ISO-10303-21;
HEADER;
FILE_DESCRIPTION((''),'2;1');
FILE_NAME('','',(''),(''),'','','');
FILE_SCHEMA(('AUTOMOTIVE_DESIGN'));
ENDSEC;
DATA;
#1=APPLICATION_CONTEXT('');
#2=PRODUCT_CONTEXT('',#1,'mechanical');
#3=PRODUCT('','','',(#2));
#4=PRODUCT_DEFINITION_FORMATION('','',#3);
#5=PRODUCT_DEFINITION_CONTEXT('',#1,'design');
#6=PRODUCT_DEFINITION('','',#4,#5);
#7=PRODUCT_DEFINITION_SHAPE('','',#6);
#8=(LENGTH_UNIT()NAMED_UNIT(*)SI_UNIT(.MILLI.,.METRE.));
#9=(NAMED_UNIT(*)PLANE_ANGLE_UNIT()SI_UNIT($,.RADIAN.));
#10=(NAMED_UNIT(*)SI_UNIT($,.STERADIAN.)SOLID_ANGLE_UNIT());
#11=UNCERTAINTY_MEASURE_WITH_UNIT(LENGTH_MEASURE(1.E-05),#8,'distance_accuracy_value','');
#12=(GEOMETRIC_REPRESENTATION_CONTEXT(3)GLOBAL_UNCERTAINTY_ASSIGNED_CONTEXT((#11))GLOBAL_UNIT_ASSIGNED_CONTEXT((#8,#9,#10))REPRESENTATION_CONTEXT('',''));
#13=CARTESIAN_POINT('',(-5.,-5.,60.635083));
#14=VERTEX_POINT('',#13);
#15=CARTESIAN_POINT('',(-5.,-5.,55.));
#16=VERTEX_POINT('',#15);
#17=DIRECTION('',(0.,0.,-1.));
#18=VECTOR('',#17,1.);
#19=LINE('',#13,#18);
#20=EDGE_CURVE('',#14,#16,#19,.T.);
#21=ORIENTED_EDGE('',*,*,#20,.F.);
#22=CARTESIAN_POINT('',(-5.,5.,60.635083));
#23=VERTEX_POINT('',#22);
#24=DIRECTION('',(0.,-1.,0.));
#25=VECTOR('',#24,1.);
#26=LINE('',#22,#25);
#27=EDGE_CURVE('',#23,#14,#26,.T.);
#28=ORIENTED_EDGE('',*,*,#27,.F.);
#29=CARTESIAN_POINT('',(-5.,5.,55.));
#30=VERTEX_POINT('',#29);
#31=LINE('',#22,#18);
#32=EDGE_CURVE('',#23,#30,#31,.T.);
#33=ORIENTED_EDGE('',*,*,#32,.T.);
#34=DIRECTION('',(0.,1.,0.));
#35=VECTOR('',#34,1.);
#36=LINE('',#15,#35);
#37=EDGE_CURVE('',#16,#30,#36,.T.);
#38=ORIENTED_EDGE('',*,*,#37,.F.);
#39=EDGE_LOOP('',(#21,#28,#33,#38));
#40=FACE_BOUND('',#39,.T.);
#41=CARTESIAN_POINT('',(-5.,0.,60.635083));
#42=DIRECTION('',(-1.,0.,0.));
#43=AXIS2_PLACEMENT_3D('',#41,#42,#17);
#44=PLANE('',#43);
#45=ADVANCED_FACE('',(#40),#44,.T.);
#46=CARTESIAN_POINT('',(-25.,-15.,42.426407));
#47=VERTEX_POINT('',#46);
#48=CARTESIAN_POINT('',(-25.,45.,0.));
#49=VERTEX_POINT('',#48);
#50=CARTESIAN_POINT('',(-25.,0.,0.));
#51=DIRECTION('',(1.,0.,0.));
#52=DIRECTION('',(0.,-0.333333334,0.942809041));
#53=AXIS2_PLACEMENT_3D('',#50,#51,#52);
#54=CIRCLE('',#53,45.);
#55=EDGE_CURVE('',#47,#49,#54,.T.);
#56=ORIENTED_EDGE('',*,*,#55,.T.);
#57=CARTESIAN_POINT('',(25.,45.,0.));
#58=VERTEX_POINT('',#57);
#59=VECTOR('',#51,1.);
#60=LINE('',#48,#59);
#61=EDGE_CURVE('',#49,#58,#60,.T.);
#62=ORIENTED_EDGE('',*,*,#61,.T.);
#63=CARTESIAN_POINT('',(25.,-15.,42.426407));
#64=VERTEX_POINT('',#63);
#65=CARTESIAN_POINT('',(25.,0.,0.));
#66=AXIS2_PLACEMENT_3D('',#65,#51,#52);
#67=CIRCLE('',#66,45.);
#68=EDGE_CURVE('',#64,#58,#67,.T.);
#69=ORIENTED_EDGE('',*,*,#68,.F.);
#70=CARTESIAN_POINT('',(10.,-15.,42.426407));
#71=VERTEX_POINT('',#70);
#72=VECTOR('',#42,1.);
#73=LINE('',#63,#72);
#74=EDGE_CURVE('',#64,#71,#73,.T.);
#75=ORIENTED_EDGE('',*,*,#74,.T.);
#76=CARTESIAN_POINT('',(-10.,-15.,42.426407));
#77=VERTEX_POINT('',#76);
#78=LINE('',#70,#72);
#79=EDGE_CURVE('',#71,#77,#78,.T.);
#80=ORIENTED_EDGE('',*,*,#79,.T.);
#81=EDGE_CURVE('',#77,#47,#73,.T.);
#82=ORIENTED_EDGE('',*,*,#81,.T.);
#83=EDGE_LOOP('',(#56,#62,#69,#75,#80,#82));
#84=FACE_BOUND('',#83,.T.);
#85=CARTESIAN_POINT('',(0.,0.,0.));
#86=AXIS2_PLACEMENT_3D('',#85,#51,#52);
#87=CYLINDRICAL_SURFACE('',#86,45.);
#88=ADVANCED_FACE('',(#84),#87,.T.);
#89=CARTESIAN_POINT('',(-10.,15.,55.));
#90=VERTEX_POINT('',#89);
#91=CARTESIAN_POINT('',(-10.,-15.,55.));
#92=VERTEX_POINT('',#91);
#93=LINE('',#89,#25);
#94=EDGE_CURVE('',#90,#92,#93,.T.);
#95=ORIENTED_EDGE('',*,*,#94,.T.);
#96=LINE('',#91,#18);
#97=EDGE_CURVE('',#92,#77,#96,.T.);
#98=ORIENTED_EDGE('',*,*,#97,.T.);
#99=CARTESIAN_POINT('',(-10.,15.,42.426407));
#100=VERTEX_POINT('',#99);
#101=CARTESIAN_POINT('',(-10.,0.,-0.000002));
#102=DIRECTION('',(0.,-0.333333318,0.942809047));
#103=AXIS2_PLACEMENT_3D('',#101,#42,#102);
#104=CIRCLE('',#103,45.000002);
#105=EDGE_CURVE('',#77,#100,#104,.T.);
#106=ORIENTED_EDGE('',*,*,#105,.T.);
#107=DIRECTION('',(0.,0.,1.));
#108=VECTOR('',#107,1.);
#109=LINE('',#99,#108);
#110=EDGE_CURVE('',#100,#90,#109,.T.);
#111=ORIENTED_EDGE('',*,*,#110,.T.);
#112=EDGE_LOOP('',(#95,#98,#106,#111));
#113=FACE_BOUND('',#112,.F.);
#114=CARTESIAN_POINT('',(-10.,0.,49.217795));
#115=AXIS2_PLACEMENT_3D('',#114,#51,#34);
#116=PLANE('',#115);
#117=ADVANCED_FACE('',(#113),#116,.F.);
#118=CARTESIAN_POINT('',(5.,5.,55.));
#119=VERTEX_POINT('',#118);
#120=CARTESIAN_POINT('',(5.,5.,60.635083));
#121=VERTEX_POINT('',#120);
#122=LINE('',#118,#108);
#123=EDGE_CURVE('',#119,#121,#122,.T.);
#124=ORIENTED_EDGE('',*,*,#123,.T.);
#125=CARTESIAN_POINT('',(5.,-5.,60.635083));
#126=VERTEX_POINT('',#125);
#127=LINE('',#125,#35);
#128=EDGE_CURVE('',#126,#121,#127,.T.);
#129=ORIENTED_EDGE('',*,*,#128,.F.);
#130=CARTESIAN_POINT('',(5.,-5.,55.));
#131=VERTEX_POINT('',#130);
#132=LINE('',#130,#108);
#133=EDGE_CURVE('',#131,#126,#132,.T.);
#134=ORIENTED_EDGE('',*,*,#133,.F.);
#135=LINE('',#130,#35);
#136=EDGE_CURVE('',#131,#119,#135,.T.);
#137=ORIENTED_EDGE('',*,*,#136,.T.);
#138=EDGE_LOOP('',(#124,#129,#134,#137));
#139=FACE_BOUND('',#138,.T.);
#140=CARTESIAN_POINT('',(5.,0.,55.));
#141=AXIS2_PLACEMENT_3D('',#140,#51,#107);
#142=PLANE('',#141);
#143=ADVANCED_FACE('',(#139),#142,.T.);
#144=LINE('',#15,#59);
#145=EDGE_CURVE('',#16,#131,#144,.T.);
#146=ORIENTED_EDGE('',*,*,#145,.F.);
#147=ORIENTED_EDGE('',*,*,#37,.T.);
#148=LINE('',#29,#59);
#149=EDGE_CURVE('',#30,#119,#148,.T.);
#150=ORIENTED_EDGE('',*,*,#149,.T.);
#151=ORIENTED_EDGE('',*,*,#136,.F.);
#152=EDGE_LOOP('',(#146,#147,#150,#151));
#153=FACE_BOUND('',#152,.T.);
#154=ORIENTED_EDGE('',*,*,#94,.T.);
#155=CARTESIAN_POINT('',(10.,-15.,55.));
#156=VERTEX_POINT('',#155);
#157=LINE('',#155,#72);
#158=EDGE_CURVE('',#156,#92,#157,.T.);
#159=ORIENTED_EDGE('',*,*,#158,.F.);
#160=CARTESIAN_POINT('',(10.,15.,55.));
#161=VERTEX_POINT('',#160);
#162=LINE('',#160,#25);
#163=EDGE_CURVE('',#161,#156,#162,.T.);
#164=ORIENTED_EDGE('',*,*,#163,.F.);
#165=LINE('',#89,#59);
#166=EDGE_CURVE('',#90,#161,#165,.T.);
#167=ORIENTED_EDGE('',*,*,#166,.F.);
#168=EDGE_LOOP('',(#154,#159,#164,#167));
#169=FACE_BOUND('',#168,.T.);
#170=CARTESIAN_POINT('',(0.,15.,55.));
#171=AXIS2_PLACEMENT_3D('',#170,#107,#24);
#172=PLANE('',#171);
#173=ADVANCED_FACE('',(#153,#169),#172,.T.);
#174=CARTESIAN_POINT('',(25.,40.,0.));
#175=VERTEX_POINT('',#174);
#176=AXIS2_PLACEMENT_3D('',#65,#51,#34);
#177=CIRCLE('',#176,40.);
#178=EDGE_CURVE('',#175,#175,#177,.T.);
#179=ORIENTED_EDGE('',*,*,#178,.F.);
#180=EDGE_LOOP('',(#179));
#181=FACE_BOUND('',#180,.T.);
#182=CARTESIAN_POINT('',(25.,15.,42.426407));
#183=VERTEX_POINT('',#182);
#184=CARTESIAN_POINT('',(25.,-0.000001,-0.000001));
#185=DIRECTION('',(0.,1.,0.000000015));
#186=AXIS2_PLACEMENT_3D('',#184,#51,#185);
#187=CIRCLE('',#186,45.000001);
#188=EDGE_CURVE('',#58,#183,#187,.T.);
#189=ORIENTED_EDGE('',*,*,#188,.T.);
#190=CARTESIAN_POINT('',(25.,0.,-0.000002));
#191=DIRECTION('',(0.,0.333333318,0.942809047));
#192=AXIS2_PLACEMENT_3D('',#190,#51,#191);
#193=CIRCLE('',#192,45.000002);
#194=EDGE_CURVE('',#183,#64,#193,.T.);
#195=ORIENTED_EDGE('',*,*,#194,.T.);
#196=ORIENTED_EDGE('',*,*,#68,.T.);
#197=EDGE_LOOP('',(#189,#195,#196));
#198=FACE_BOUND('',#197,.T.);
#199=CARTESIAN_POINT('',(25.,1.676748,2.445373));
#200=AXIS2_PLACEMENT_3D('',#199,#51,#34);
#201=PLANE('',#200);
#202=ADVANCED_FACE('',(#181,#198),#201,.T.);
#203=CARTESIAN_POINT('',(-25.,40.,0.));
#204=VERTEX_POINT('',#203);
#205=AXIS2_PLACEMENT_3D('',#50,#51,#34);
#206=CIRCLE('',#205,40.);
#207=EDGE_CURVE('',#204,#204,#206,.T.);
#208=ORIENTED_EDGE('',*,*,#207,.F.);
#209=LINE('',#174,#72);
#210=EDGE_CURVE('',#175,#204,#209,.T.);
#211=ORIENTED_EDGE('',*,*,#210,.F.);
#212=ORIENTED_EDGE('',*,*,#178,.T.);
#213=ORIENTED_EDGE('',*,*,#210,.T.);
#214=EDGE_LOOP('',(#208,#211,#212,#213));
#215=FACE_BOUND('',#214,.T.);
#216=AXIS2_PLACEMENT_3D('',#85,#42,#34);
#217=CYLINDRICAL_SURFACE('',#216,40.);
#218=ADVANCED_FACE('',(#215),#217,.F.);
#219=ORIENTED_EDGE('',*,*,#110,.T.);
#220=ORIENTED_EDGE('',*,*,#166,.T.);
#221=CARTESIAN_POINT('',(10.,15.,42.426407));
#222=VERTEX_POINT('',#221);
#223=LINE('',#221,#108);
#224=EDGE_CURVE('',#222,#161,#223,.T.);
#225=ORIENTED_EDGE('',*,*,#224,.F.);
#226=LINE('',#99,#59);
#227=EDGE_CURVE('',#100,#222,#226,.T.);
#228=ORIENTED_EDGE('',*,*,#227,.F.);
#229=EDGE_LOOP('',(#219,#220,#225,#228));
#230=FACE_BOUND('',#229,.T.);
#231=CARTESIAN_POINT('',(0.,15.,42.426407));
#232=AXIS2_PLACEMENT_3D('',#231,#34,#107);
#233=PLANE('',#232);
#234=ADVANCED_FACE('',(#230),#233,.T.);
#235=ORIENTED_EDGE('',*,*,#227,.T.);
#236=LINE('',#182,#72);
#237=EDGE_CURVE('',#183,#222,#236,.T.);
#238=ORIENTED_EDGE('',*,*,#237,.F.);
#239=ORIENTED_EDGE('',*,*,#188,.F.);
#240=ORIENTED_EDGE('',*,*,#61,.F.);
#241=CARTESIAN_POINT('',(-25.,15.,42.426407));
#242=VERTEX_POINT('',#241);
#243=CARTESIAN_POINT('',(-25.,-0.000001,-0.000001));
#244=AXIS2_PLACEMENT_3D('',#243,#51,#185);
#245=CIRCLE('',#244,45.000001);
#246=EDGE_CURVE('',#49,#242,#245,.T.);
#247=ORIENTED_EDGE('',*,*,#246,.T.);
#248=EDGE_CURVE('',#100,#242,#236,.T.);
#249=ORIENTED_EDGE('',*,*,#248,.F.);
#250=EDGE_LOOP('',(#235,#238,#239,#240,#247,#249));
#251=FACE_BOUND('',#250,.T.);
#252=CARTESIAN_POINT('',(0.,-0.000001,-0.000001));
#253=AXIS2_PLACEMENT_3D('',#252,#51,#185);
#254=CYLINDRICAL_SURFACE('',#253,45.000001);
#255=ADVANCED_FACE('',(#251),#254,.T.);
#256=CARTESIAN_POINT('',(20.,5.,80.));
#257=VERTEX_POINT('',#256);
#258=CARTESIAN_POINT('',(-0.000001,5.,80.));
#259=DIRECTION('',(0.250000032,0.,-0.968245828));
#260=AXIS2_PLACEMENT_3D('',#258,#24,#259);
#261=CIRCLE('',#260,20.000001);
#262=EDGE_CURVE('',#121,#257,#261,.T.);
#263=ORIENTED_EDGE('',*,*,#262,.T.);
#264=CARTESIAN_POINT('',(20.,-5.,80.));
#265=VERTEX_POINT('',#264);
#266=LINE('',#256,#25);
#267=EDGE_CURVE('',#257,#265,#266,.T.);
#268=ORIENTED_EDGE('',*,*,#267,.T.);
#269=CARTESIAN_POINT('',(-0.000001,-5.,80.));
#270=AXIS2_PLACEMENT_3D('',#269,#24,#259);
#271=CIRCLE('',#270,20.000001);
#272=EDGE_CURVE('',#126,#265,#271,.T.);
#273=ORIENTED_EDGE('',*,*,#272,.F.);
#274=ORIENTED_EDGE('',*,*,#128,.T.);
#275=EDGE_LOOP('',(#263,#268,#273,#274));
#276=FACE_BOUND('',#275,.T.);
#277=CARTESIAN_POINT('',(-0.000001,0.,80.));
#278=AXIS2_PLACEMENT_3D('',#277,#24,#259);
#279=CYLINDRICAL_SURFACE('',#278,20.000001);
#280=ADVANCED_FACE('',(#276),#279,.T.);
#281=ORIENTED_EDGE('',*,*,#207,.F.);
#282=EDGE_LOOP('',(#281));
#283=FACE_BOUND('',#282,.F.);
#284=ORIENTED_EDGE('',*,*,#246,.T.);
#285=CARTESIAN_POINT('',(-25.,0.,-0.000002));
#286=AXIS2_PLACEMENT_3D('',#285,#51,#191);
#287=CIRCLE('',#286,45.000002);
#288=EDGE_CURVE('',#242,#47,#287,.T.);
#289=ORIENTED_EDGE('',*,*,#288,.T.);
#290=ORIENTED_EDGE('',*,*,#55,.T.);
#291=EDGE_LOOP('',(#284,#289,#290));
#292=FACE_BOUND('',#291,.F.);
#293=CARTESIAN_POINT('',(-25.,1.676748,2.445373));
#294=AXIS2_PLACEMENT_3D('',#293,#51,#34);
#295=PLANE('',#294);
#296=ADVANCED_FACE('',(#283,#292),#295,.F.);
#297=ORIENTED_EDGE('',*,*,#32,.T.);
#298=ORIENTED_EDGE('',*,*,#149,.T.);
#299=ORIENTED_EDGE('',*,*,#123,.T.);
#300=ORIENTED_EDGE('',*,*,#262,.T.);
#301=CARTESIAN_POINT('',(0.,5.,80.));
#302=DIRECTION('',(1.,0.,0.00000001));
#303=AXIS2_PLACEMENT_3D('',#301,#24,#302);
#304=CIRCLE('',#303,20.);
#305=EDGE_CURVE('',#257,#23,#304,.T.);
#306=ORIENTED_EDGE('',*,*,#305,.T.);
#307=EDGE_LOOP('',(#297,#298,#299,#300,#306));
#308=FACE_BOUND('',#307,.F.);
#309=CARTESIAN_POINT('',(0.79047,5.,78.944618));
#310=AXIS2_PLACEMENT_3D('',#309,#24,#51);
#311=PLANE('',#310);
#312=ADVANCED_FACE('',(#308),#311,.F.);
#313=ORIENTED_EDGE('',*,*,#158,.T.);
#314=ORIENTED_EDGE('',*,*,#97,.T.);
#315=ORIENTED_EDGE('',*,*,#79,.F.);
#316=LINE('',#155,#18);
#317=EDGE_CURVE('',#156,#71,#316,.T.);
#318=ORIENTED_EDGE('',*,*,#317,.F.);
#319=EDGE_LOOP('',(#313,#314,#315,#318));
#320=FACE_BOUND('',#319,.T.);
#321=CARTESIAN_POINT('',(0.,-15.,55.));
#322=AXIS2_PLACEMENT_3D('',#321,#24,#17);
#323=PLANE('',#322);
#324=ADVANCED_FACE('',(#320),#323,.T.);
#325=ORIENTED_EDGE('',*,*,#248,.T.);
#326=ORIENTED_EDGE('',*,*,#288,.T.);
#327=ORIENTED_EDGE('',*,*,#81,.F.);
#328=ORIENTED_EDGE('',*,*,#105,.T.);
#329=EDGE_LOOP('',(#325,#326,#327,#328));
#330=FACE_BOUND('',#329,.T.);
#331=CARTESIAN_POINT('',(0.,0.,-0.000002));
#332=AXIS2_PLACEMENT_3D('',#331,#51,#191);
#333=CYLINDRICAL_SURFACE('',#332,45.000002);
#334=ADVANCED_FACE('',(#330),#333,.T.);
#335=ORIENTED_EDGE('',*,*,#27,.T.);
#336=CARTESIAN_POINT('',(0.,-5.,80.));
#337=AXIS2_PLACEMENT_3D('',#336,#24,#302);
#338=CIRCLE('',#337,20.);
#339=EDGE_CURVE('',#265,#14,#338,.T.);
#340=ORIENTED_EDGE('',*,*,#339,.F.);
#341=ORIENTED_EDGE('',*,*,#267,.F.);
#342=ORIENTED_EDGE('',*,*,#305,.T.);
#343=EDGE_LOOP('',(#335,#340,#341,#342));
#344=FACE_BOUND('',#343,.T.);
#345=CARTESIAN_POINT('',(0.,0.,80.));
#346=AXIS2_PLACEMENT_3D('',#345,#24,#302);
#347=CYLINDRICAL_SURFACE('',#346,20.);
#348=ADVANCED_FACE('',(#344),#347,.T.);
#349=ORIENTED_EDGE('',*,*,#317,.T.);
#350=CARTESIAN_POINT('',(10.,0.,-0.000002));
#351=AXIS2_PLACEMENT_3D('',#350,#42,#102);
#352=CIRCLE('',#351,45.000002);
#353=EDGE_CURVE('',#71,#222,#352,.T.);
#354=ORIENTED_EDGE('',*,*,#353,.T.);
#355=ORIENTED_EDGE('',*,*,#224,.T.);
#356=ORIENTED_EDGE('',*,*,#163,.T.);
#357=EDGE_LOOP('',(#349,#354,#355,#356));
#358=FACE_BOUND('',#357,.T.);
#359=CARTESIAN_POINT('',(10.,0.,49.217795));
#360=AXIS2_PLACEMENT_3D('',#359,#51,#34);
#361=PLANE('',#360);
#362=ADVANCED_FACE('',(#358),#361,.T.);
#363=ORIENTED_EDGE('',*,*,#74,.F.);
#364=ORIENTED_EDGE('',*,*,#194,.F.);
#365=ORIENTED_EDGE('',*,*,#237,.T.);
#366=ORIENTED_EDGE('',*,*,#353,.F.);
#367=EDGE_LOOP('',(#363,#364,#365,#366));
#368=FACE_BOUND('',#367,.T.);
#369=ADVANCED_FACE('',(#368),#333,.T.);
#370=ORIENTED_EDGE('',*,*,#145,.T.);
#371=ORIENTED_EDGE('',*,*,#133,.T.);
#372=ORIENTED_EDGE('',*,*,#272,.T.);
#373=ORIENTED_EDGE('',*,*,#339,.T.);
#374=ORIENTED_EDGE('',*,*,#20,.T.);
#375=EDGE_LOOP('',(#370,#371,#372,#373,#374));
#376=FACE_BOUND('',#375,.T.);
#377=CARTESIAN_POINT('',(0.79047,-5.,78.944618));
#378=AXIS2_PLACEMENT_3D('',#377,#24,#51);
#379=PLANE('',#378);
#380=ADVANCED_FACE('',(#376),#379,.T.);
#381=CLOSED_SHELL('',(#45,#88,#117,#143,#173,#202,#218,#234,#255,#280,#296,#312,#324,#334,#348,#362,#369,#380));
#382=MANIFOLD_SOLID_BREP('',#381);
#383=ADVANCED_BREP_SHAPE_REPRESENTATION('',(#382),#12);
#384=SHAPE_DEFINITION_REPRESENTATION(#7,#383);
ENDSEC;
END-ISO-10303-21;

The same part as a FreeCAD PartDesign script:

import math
import FreeCAD as App
import Part
import Sketcher
from FreeCAD import Vector

doc = App.newDocument("Part")
body = doc.addObject("PartDesign::Body", "Body")

# Sketch on YZ plane
sketch1 = body.newObject("Sketcher::SketchObject", "Sketch")
sketch1.AttachmentSupport = (doc.getObject("YZ_Plane"), [""])
sketch1.MapMode = "FlatFace"
sketch1.addGeometry([
    Part.ArcOfCircle(Part.Circle(Vector(0, 0, 0), Vector(0, 0, 1), 45), math.radians(109.471221), math.radians(360)),
    Part.ArcOfCircle(Part.Circle(Vector(-0.000001, -0.000001, 0), Vector(0, 0, 1), 45.000001), math.radians(0.000001), math.radians(70.528778)),
    Part.ArcOfCircle(Part.Circle(Vector(0, -0.000002, 0), Vector(0, 0, 1), 45.000002), math.radians(70.52878), math.radians(109.47122)),
    Part.Circle(Vector(0, 0, 0), Vector(0, 0, 1), 40),
], False)
sketch1.addConstraint([
    Sketcher.Constraint("Tangent", 0, 2, 1, 1),
    Sketcher.Constraint("Tangent", 1, 2, 2, 1),
    Sketcher.Constraint("Tangent", 2, 2, 0, 1),
    Sketcher.Constraint("Coincident", 0, 3, -1, 1),
    Sketcher.Constraint("Coincident", 3, 3, -1, 1),
    Sketcher.Constraint("PointOnObject", 0, 2, -1),
    Sketcher.Constraint("Horizontal", 1, 2, 2, 2),
    Sketcher.Constraint("Diameter", 3, 80.0),
    Sketcher.Constraint("Radius", 0, 45.0),
    Sketcher.Constraint("DistanceX", -1, 1, 1, 2, 15.0),
])
pad1 = body.newObject("PartDesign::Pad", "Pad")
pad1.Profile = sketch1
pad1.Length = 50
pad1.Midplane = True

# Sketch on YZ plane
sketch2 = body.newObject("Sketcher::SketchObject", "Sketch001")
sketch2.AttachmentSupport = (doc.getObject("YZ_Plane"), [""])
sketch2.MapMode = "FlatFace"
sketch2.addGeometry([
    Part.ArcOfCircle(Part.Circle(Vector(0, -0.000002, 0), Vector(0, 0, 1), 45.000002), math.radians(70.52878), math.radians(109.47122)),
    Part.LineSegment(Vector(15, 42.426407, 0), Vector(15, 55, 0)),
    Part.LineSegment(Vector(15, 55, 0), Vector(-15, 55, 0)),
    Part.LineSegment(Vector(-15, 55, 0), Vector(-15, 42.426407, 0)),
], False)
sketch2.addConstraint([
    Sketcher.Constraint("Coincident", 0, 1, 1, 1),
    Sketcher.Constraint("Coincident", 1, 2, 2, 1),
    Sketcher.Constraint("Coincident", 2, 2, 3, 1),
    Sketcher.Constraint("Coincident", 3, 2, 0, 2),
    Sketcher.Constraint("Vertical", 1),
    Sketcher.Constraint("Horizontal", 2),
    Sketcher.Constraint("Vertical", 3),
    Sketcher.Constraint("Coincident", 0, 3, -1, 1),
    Sketcher.Constraint("Horizontal", 0, 1, 3, 2),
    Sketcher.Constraint("DistanceX", 2, 2, 2, 1, 30.0),
    Sketcher.Constraint("DistanceY", -1, 1, 1, 2, 55.0),
    Sketcher.Constraint("Radius", 0, 45.000002),
])
pad2 = body.newObject("PartDesign::Pad", "Pad001")
pad2.Profile = sketch2
pad2.Length = 20
pad2.Midplane = True

# Sketch on XZ plane
sketch3 = body.newObject("Sketcher::SketchObject", "Sketch002")
sketch3.AttachmentSupport = (doc.getObject("XZ_Plane"), [""])
sketch3.MapMode = "FlatFace"
sketch3.addGeometry([
    Part.ArcOfCircle(Part.Circle(Vector(-0.000001, 80, 0), Vector(0, 0, 1), 20.000001), math.radians(-75.522486), math.radians(-0.000001)),  # 0
    Part.ArcOfCircle(Part.Circle(Vector(0, 80, 0), Vector(0, 0, 1), 20), math.radians(0.000001), math.radians(255.522488)),  # 1
    Part.LineSegment(Vector(-5, 60.635083, 0), Vector(-5, 55, 0)),  # 2
    Part.LineSegment(Vector(-5, 55, 0), Vector(5, 55, 0)),  # 3
    Part.LineSegment(Vector(5, 55, 0), Vector(5, 60.635083, 0)),  # 4
], False)
sketch3.addConstraint([
    Sketcher.Constraint("Tangent", 0, 2, 1, 1),
    Sketcher.Constraint("Coincident", 1, 2, 2, 1),
    Sketcher.Constraint("Coincident", 2, 2, 3, 1),
    Sketcher.Constraint("Coincident", 3, 2, 4, 1),
    Sketcher.Constraint("Coincident", 4, 2, 0, 1),
    Sketcher.Constraint("Vertical", 2),
    Sketcher.Constraint("Horizontal", 3),
    Sketcher.Constraint("Vertical", 4),
    Sketcher.Constraint("Equal", 0, 1),
    Sketcher.Constraint("Symmetric", 1, 2, 4, 2, -2),
    Sketcher.Constraint("Horizontal", 1, 3, 0, 2),
    Sketcher.Constraint("Radius", 0, 20.000001),
    Sketcher.Constraint("DistanceX", 3, 1, 3, 2, 10.0),
    Sketcher.Constraint("DistanceY", -1, 1, 0, 3, 80.0),
    Sketcher.Constraint("DistanceY", -1, 1, 2, 2, 55.0),
])
pad3 = body.newObject("PartDesign::Pad", "Pad002")
pad3.Profile = sketch3
pad3.Length = 10
pad3.Midplane = True

doc.recompute()
